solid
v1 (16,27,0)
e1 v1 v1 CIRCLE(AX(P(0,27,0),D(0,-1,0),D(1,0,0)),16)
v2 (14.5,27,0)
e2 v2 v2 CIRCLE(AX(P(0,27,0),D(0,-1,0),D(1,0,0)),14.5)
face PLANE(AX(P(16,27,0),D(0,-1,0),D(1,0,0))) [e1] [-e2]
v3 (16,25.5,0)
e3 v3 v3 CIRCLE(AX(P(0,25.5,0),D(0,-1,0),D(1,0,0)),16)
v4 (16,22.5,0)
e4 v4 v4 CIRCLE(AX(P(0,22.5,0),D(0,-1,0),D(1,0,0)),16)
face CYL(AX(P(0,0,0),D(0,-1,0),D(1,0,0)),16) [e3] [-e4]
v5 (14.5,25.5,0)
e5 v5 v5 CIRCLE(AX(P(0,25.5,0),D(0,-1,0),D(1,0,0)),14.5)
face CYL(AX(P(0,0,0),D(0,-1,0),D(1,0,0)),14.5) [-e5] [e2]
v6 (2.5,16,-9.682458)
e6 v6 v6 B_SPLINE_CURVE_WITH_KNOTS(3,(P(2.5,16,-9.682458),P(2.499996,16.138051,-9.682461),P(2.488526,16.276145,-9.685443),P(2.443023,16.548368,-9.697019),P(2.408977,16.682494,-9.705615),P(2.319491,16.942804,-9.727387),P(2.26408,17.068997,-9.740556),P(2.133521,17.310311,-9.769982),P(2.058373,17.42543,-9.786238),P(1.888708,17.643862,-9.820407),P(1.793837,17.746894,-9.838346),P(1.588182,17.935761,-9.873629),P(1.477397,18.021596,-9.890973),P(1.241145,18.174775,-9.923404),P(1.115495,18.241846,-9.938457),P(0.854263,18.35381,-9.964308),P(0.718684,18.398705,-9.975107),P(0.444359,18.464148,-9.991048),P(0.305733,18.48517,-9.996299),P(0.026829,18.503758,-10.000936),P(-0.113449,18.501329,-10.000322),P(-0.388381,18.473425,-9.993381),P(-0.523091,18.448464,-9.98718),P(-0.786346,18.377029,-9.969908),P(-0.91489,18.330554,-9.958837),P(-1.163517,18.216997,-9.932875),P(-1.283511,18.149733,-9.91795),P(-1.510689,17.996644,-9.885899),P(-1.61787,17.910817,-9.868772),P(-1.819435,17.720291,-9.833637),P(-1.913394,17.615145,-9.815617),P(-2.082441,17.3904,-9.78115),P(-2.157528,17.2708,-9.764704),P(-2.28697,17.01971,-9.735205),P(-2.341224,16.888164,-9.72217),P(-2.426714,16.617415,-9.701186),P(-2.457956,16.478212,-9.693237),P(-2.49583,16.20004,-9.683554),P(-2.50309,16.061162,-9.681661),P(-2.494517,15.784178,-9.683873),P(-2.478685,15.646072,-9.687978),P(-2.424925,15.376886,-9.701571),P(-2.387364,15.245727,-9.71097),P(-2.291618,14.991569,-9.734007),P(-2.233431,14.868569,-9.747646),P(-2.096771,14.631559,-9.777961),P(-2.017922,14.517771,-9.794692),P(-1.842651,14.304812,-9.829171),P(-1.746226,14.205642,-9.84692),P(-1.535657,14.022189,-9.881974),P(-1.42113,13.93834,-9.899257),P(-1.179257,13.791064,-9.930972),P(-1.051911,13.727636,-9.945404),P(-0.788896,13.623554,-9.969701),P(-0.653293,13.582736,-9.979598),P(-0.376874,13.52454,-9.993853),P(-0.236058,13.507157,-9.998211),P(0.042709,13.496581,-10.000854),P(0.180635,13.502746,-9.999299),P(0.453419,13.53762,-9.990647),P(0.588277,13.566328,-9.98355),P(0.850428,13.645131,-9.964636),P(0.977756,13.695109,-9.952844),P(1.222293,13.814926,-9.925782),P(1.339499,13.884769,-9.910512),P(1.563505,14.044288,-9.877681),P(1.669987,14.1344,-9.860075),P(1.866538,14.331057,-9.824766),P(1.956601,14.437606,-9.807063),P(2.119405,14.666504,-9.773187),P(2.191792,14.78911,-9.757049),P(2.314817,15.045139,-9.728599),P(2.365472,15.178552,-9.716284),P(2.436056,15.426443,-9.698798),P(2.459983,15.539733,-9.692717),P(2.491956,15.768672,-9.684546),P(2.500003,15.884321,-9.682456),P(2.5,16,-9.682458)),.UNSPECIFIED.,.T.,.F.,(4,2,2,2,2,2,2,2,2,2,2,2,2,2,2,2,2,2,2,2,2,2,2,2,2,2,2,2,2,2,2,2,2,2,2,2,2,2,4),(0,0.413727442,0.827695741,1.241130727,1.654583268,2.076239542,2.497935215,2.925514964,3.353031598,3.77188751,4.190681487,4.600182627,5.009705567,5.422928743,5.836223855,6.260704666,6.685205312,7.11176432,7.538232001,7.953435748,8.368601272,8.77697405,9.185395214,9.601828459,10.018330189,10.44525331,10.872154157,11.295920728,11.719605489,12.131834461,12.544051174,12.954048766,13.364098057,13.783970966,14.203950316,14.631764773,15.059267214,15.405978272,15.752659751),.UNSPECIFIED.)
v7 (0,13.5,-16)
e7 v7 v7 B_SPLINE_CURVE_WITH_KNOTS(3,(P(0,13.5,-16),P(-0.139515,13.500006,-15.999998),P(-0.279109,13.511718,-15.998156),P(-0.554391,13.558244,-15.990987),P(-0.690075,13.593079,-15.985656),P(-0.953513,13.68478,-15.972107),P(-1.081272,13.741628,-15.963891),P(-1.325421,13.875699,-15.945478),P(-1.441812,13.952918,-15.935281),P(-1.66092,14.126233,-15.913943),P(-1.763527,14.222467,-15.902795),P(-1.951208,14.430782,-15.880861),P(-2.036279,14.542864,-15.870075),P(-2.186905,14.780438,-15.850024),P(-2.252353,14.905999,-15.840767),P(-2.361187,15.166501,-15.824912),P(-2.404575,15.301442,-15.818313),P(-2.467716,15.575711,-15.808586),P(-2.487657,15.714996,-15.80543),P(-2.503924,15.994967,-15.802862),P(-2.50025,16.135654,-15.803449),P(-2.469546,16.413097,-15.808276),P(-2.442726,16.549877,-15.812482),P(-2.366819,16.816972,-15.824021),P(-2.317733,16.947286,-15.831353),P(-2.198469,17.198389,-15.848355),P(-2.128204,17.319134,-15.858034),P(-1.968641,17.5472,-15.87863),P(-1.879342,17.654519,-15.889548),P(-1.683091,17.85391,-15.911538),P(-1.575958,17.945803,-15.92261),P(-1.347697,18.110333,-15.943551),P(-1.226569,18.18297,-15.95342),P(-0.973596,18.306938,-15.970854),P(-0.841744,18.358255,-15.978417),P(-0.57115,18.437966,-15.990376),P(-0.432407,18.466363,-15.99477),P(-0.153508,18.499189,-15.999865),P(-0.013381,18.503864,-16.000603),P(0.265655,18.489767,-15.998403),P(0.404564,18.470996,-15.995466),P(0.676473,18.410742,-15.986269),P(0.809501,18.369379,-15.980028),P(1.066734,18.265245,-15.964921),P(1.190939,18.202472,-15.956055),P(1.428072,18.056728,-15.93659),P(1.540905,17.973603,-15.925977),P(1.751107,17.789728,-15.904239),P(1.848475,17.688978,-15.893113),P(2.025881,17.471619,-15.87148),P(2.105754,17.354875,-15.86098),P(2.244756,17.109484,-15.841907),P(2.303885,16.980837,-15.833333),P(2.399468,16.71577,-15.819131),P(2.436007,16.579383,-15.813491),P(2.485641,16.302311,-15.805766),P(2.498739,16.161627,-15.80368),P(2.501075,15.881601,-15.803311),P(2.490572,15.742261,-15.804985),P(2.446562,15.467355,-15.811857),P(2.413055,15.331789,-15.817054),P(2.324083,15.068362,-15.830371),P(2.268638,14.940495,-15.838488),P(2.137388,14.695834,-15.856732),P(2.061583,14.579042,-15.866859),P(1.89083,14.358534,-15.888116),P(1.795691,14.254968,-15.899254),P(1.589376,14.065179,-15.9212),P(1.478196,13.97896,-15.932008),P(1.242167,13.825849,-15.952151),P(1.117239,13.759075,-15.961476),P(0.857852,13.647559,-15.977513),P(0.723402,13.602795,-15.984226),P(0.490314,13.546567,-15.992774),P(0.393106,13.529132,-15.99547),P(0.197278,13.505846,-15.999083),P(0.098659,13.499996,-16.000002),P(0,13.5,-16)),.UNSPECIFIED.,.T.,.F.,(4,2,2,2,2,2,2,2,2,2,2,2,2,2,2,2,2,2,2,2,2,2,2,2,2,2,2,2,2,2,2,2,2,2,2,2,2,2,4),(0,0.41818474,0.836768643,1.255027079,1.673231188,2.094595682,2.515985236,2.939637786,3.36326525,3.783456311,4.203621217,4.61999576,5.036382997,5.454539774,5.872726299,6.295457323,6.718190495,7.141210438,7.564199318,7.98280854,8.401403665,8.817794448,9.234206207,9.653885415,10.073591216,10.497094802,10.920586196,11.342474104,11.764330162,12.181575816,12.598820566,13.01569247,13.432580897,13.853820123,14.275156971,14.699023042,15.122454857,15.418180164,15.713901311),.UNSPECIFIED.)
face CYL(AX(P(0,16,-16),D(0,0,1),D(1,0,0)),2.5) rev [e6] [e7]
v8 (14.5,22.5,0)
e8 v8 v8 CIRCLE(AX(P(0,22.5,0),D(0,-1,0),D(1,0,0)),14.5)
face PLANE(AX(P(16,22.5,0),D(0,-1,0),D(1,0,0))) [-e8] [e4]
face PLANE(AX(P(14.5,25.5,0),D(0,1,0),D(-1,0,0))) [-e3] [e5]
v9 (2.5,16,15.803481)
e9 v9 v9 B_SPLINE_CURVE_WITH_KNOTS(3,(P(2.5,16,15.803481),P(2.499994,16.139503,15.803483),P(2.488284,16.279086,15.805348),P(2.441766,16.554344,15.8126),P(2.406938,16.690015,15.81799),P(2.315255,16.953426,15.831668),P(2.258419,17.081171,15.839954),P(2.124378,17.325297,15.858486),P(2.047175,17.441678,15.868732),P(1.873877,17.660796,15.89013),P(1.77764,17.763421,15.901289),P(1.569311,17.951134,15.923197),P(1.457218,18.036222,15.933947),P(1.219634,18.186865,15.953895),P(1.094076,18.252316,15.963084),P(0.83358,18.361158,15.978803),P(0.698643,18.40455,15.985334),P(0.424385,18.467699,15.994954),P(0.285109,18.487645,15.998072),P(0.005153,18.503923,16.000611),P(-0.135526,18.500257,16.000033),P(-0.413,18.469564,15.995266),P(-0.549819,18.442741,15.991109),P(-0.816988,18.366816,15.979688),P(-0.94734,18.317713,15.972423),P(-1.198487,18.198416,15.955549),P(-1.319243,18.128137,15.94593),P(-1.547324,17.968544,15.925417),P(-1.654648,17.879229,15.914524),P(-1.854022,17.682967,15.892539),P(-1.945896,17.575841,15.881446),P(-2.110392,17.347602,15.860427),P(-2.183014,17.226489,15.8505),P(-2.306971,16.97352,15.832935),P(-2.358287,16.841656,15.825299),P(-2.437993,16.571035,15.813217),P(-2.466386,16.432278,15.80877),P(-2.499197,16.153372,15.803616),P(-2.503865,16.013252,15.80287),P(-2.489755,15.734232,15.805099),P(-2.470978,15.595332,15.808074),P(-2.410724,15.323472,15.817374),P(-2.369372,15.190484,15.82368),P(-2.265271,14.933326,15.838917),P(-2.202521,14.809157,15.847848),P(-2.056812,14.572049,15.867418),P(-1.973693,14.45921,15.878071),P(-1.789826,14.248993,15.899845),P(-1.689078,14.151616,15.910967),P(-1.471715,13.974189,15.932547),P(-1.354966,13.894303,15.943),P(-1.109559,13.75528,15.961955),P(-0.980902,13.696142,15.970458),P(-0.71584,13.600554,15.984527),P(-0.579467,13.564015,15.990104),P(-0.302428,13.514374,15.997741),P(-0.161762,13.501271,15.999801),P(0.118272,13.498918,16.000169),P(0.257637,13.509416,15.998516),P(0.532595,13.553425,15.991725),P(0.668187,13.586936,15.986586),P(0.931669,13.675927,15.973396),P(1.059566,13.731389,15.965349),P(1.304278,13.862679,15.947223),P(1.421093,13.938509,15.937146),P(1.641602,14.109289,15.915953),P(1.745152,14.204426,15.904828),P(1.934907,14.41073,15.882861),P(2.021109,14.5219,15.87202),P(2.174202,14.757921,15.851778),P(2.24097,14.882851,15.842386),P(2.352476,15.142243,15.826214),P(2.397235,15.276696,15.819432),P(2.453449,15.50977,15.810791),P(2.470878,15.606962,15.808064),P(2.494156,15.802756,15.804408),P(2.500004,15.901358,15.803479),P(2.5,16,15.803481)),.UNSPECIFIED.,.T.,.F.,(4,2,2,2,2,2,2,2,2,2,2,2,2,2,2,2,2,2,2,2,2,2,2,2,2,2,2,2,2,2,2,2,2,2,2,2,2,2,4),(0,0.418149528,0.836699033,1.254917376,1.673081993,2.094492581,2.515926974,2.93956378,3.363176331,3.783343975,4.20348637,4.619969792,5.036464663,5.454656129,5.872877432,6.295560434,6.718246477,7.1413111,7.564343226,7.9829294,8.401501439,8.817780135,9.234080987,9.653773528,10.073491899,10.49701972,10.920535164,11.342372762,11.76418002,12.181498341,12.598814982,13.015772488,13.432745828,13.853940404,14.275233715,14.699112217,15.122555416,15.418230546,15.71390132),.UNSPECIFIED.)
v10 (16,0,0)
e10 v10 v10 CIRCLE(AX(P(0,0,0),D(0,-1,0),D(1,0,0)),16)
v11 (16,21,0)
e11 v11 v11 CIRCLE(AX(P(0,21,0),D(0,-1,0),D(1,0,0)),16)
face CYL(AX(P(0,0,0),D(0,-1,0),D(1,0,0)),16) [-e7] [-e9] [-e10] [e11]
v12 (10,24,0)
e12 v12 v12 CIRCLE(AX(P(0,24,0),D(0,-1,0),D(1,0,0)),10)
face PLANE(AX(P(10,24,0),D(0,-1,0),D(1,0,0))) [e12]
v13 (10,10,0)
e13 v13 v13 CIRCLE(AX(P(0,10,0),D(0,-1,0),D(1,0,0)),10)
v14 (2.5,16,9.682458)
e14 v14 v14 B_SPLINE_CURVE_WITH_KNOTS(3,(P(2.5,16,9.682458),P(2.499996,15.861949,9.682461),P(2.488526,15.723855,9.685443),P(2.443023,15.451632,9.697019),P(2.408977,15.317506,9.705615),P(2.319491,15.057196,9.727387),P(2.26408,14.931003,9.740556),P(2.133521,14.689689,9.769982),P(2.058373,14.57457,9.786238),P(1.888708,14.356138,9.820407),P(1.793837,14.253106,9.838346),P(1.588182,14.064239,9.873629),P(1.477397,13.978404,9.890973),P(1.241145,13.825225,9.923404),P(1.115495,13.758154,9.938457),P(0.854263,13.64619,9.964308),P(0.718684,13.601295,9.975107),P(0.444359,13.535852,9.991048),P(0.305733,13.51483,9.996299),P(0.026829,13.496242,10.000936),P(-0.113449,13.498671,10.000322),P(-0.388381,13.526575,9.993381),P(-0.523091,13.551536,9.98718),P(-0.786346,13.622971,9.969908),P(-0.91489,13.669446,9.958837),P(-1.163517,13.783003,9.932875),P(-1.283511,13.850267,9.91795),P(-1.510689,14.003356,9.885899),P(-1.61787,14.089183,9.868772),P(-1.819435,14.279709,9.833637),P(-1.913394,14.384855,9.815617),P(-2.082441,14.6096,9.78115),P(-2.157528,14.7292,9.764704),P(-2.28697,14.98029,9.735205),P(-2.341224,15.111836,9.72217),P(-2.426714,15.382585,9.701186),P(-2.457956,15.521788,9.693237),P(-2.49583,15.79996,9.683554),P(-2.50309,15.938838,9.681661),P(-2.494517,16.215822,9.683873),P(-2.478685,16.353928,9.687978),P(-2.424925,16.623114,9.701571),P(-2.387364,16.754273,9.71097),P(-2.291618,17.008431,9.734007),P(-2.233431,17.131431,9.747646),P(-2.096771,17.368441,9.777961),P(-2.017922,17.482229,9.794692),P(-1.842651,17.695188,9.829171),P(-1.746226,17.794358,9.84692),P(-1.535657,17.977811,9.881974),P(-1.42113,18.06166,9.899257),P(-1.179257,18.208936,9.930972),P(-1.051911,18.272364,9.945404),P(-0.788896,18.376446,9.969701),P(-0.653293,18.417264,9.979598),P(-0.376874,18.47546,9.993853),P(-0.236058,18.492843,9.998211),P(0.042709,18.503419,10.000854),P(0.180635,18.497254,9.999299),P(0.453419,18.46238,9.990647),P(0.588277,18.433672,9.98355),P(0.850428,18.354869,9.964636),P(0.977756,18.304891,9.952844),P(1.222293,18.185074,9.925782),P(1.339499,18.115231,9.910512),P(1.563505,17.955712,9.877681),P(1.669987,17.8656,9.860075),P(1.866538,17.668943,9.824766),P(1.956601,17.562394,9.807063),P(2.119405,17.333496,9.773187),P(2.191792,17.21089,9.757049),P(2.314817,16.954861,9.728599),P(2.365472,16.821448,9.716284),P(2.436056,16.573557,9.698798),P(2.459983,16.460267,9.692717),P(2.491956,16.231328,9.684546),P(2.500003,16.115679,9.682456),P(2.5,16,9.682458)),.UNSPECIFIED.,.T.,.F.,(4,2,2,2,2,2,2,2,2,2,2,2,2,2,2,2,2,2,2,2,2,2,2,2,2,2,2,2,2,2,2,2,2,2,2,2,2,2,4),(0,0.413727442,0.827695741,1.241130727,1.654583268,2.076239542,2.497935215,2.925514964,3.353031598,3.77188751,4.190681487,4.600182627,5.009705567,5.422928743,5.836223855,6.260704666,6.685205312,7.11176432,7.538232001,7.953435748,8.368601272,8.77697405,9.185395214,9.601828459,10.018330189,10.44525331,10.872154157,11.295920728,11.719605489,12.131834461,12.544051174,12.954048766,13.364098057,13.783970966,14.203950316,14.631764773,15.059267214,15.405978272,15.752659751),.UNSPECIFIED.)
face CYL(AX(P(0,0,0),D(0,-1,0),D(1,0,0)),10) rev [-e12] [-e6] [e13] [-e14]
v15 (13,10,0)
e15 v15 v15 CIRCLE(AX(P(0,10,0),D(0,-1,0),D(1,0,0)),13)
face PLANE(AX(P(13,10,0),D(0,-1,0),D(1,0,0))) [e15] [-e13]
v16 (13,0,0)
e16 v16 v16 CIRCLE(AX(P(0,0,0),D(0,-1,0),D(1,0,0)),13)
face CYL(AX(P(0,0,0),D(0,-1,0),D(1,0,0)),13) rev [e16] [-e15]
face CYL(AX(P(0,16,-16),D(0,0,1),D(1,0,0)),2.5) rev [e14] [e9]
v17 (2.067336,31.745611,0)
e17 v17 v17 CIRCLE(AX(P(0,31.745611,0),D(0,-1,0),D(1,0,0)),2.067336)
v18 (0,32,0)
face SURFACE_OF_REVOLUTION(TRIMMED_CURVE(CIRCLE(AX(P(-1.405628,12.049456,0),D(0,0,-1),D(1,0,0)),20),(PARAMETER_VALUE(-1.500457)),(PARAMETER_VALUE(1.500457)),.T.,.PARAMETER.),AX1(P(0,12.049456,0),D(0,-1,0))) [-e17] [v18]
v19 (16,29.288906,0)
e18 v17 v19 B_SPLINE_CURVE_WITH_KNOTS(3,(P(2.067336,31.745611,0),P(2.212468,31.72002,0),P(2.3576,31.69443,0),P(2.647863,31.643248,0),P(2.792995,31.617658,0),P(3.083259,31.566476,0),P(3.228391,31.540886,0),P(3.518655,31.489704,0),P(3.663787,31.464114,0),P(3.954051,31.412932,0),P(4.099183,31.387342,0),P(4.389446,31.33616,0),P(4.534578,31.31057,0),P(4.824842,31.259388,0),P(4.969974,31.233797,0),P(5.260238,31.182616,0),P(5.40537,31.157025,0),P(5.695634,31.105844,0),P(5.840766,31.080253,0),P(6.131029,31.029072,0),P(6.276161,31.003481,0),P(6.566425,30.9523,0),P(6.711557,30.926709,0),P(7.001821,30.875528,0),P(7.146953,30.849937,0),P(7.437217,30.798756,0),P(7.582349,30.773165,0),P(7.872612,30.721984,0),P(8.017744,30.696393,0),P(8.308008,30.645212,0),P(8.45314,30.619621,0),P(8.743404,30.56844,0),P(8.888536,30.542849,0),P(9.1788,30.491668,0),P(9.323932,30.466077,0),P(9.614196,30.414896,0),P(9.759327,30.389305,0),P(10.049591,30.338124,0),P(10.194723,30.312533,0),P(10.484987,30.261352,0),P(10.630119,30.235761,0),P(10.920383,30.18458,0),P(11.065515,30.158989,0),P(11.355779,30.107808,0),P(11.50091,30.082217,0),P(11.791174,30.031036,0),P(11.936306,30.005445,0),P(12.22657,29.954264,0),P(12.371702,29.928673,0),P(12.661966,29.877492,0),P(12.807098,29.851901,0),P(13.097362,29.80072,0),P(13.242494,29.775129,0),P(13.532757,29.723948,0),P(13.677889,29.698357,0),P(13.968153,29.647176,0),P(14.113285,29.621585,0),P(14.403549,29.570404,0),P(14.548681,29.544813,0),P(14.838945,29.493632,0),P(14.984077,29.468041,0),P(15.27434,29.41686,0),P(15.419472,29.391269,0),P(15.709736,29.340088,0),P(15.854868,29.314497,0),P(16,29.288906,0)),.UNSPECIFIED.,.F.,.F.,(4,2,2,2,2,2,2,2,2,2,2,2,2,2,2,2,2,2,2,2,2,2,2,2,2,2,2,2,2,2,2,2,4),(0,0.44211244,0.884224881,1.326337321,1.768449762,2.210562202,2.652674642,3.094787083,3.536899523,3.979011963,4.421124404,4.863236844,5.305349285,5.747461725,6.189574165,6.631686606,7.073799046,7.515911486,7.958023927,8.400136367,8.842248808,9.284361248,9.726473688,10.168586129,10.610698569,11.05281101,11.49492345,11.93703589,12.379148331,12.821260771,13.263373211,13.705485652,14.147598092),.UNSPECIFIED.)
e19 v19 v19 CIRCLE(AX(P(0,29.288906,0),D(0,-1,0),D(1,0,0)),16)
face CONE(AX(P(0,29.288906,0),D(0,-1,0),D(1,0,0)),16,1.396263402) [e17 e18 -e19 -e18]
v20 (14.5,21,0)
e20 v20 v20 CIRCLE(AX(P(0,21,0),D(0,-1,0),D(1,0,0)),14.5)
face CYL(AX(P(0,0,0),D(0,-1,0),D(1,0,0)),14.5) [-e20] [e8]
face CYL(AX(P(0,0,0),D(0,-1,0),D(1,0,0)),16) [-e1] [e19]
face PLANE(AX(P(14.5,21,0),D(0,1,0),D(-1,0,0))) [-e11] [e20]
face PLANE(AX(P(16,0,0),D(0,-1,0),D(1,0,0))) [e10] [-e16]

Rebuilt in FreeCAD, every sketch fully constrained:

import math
import FreeCAD as App
import Part
import Sketcher

V = App.Vector
Q = App.Units.Quantity

doc = App.newDocument("Part")
params = doc.addObject("Spreadsheet::Sheet", "Params")
for row, (alias, value) in enumerate([
    ("sketch1_radius", "20 mm"),
    ("sketch1_width", "10 mm"),
    ("sketch1_width2", "3 mm"),
    ("sketch1_height", "8 mm"),
    ("sketch1_height2", "14 mm"),
    ("revolution_angle", "360 deg"),
    ("sketch2_diameter", "5 mm"),
], start=1):
    params.set(f"A{row}", alias)
    params.set(f"B{row}", "=" + value)
    params.setAlias(f"B{row}", alias)

body = doc.addObject("PartDesign::Body", "Body")

# Sketch on XY plane
sketch1 = body.newObject("Sketcher::SketchObject", "Sketch")
sketch1.AttachmentSupport = (doc.getObject("XY_Plane"), [""])
sketch1.MapMode = "FlatFace"
sketch1.addGeometry([
    Part.LineSegment(V(14.5, 27, 0), V(16, 27, 0)),  # 0
    Part.LineSegment(V(16, 27, 0), V(16, 29.3, 0)),  # 1
    Part.LineSegment(V(16, 29.3, 0), V(2.1, 31.7, 0)),  # 2
    Part.ArcOfCircle(Part.Circle(V(-1.4, 12, 0), V(0, 0, 1), 20), math.radians(80), math.radians(85.97)),  # 3
    Part.LineSegment(V(0, 32, 0), V(0, 24, 0)),  # 4
    Part.LineSegment(V(0, 24, 0), V(10, 24, 0)),  # 5
    Part.LineSegment(V(10, 24, 0), V(10, 10, 0)),  # 6
    Part.LineSegment(V(10, 10, 0), V(13, 10, 0)),  # 7
    Part.LineSegment(V(13, 10, 0), V(13, 0, 0)),  # 8
    Part.LineSegment(V(13, 0, 0), V(16, 0, 0)),  # 9
    Part.LineSegment(V(16, 0, 0), V(16, 21, 0)),  # 10
    Part.LineSegment(V(16, 21, 0), V(14.5, 21, 0)),  # 11
    Part.LineSegment(V(14.5, 21, 0), V(14.5, 22.5, 0)),  # 12
    Part.LineSegment(V(14.5, 22.5, 0), V(16, 22.5, 0)),  # 13
    Part.LineSegment(V(16, 22.5, 0), V(16, 25.5, 0)),  # 14
    Part.LineSegment(V(16, 25.5, 0), V(14.5, 25.5, 0)),  # 15
    Part.LineSegment(V(14.5, 25.5, 0), V(14.5, 27, 0)),  # 16
], False)
sketch1.addConstraint([
    Sketcher.Constraint("Coincident", 0, 2, 1, 1),
    Sketcher.Constraint("Coincident", 1, 2, 2, 1),
    Sketcher.Constraint("Tangent", 2, 2, 3, 1),
    Sketcher.Constraint("Coincident", 3, 2, 4, 1),
    Sketcher.Constraint("Coincident", 4, 2, 5, 1),
    Sketcher.Constraint("Coincident", 5, 2, 6, 1),
    Sketcher.Constraint("Coincident", 6, 2, 7, 1),
    Sketcher.Constraint("Coincident", 7, 2, 8, 1),
    Sketcher.Constraint("Coincident", 8, 2, 9, 1),
    Sketcher.Constraint("Coincident", 9, 2, 10, 1),
    Sketcher.Constraint("Coincident", 10, 2, 11, 1),
    Sketcher.Constraint("Coincident", 11, 2, 12, 1),
    Sketcher.Constraint("Coincident", 12, 2, 13, 1),
    Sketcher.Constraint("Coincident", 13, 2, 14, 1),
    Sketcher.Constraint("Coincident", 14, 2, 15, 1),
    Sketcher.Constraint("Coincident", 15, 2, 16, 1),
    Sketcher.Constraint("Coincident", 16, 2, 0, 1),
    Sketcher.Constraint("Horizontal", 0),
    Sketcher.Constraint("Vertical", 1),
    Sketcher.Constraint("Vertical", 4),
    Sketcher.Constraint("Horizontal", 5),
    Sketcher.Constraint("Vertical", 6),
    Sketcher.Constraint("Horizontal", 7),
    Sketcher.Constraint("Vertical", 8),
    Sketcher.Constraint("Horizontal", 9),
    Sketcher.Constraint("Vertical", 10),
    Sketcher.Constraint("Horizontal", 11),
    Sketcher.Constraint("Vertical", 12),
    Sketcher.Constraint("Horizontal", 13),
    Sketcher.Constraint("Vertical", 14),
    Sketcher.Constraint("Horizontal", 15),
    Sketcher.Constraint("Vertical", 16),
    Sketcher.Constraint("PointOnObject", 3, 2, -2),
    Sketcher.Constraint("PointOnObject", 8, 2, -1),
    Sketcher.Constraint("Vertical", 1, 2, 9, 2),
    Sketcher.Constraint("Vertical", 10, 2, 13, 2),
    Sketcher.Constraint("Vertical", 12, 2, 15, 2),
    Sketcher.Constraint("Equal", 7, 9),
    Sketcher.Constraint("Equal", 5, 8),
    Sketcher.Constraint("Equal", 15, 12),
    Sketcher.Constraint("Equal", 9, 14),
    Sketcher.Constraint("Equal", 12, 16),
    Sketcher.Constraint("Radius", 3, Q("20 mm")),
    Sketcher.Constraint("DistanceX", 5, 1, 5, 2, Q("10 mm")),
    Sketcher.Constraint("DistanceX", 7, 1, 7, 2, Q("3 mm")),
    Sketcher.Constraint("DistanceY", 4, 2, 4, 1, Q("8 mm")),
    Sketcher.Constraint("DistanceY", 6, 2, 6, 1, Q("14 mm")),
    Sketcher.Constraint("DistanceY", 10, 1, 10, 2, Q("21 mm")),
    Sketcher.Constraint("Angle", 2, Q("170 deg")),
    Sketcher.Constraint("DistanceX", 0, 1, 0, 2, Q("1.5 mm")),
    Sketcher.Constraint("Distance", 2, Q("14.147598 mm")),
])
sketch1.setExpression("Constraints[42]", "Params.sketch1_radius")
sketch1.setExpression("Constraints[43]", "Params.sketch1_width")
sketch1.setExpression("Constraints[44]", "Params.sketch1_width2")
sketch1.setExpression("Constraints[45]", "Params.sketch1_height")
sketch1.setExpression("Constraints[46]", "Params.sketch1_height2")
revolution = body.newObject("PartDesign::Revolution", "Revolution")
revolution.Profile = sketch1
revolution.ReferenceAxis = (sketch1, ["V_Axis"])
revolution.setExpression("Angle", "Params.revolution_angle")

# Sketch on XY plane
sketch2 = body.newObject("Sketcher::SketchObject", "Sketch001")
sketch2.AttachmentSupport = (doc.getObject("XY_Plane"), [""])
sketch2.MapMode = "FlatFace"
sketch2.addGeometry(Part.Circle(V(0, 16, 0), V(0, 0, 1), 2.5), False)
sketch2.addConstraint([
    Sketcher.Constraint("PointOnObject", 0, 3, -2),
    Sketcher.Constraint("Diameter", 0, Q("5 mm")),
    Sketcher.Constraint("DistanceY", -1, 1, 0, 3, Q("16 mm")),
])
sketch2.setExpression("Constraints[1]", "Params.sketch2_diameter")
pocket1 = body.newObject("PartDesign::Pocket", "Pocket")
pocket1.Profile = sketch2
pocket1.Type = "ThroughAll"
pocket1.Midplane = True

doc.recompute()
